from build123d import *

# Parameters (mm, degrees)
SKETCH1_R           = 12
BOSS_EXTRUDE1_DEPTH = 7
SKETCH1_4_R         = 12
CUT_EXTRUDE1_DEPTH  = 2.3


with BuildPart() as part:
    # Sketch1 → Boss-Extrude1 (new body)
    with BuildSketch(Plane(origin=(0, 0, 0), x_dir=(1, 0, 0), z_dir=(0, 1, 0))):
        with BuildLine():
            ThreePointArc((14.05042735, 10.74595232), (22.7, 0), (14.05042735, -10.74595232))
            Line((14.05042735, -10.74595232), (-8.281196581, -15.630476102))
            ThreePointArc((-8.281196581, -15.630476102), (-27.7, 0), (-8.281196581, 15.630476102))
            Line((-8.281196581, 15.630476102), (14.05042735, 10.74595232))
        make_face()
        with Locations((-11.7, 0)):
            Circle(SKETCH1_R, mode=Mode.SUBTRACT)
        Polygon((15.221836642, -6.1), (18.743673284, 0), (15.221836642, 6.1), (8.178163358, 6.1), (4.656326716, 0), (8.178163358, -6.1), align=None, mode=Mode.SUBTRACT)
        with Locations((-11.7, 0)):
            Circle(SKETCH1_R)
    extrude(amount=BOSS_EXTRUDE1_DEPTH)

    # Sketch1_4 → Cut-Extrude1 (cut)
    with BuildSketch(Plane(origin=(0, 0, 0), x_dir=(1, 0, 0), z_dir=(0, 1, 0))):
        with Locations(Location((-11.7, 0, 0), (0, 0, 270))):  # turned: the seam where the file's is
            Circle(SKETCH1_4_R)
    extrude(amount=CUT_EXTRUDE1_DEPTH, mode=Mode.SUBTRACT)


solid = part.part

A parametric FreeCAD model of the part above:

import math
import FreeCAD as App
import Part
import Sketcher
from FreeCAD import Vector
Q = App.Units.Quantity

doc = App.newDocument("Part")
params = doc.addObject("Spreadsheet::Sheet", "Params")
for row, (alias, value) in enumerate([
    ("sketch1_radius", "11 mm"),
    ("sketch1_radius2", "16 mm"),
    ("pad1_length", "7 mm"),
    ("sketch2_diameter", "24 mm"),
    ("pocket1_length", "2.3 mm"),
], start=1):
    params.set(f"A{row}", alias)
    params.set(f"B{row}", "=" + value)
    params.setAlias(f"B{row}", alias)

body = doc.addObject("PartDesign::Body", "Body")

# Sketch on XZ plane
sketch1 = doc.addObject("Sketcher::SketchObject", "Sketch")
body.addObject(sketch1)
sketch1.AttachmentSupport = (doc.XZ_Plane, [""])
sketch1.MapMode = "FlatFace"
sketch1.addGeometry([
    Part.ArcOfCircle(Part.Circle(Vector(12, 0, 0), Vector(0, 0, 1), 11), math.radians(-78), math.radians(78)),  # 0
    Part.LineSegment(Vector(14, -11, 0), Vector(-8, -16, 0)),  # 1
    Part.ArcOfCircle(Part.Circle(Vector(-12, 0, 0), Vector(0, 0, 1), 16), math.radians(78), math.radians(282)),  # 2
    Part.LineSegment(Vector(-8, 16, 0), Vector(14, 11, 0)),  # 3
    Part.LineSegment(Vector(15, 6, 0), Vector(8, 6, 0)),  # 4
    Part.LineSegment(Vector(8, 6, 0), Vector(5, 0, 0)),  # 5
    Part.LineSegment(Vector(5, 0, 0), Vector(8, -6, 0)),  # 6
    Part.LineSegment(Vector(8, -6, 0), Vector(15, -6, 0)),  # 7
    Part.LineSegment(Vector(15, -6, 0), Vector(19, 0, 0)),  # 8
    Part.LineSegment(Vector(19, 0, 0), Vector(15, 6, 0)),  # 9
], False)
sketch1.addConstraint([
    Sketcher.Constraint("Tangent", 0, 1, 1, 1),
    Sketcher.Constraint("Tangent", 1, 2, 2, 2),
    Sketcher.Constraint("Tangent", 2, 1, 3, 1),
    Sketcher.Constraint("Tangent", 3, 2, 0, 2),
    Sketcher.Constraint("Coincident", 4, 2, 5, 1),
    Sketcher.Constraint("Coincident", 5, 2, 6, 1),
    Sketcher.Constraint("Coincident", 6, 2, 7, 1),
    Sketcher.Constraint("Coincident", 7, 2, 8, 1),
    Sketcher.Constraint("Coincident", 8, 2, 9, 1),
    Sketcher.Constraint("Coincident", 9, 2, 4, 1),
    Sketcher.Constraint("Horizontal", 4),
    Sketcher.Constraint("Horizontal", 7),
    Sketcher.Constraint("Symmetric", 0, 3, 2, 3, -1, 1),
    Sketcher.Constraint("Symmetric", 4, 2, 6, 2, -1),
    Sketcher.Constraint("PointOnObject", 0, 3, -1),
    Sketcher.Constraint("PointOnObject", 5, 2, -1),
    Sketcher.Constraint("PointOnObject", 8, 2, -1),
    Sketcher.Constraint("Parallel", 5, 8),
    Sketcher.Constraint("Parallel", 6, 9),
    Sketcher.Constraint("Radius", 0, Q("11 mm")),
    Sketcher.Constraint("Radius", 2, Q("16 mm")),
    Sketcher.Constraint("Angle", 5, Q("-120 deg")),
    Sketcher.Constraint("DistanceX", -1, 1, 0, 3, Q("11.7 mm")),
    Sketcher.Constraint("DistanceY", -1, 1, 4, 2, Q("6.1 mm")),
    Sketcher.Constraint("DistanceX", 5, 2, 0, 1, Q("9.394101 mm")),
    Sketcher.Constraint("DistanceX", 4, 2, 4, 1, Q("7.043673 mm")),
])
sketch1.setExpression("Constraints[19]", "Params.sketch1_radius")
sketch1.setExpression("Constraints[20]", "Params.sketch1_radius2")
pad1 = doc.addObject("PartDesign::Pad", "Pad")
body.addObject(pad1)
pad1.Profile = sketch1
pad1.setExpression("Length", "Params.pad1_length")
pad1.Reversed = True

# Sketch on XZ plane
sketch2 = doc.addObject("Sketcher::SketchObject", "Sketch001")
body.addObject(sketch2)
sketch2.AttachmentSupport = (doc.XZ_Plane, [""])
sketch2.MapMode = "FlatFace"
sketch2.addGeometry(Part.Circle(Vector(-12, 0, 0), Vector(0, 0, 1), 12), False)
sketch2.addConstraint([
    Sketcher.Constraint("PointOnObject", 0, 3, -1),
    Sketcher.Constraint("Diameter", 0, Q("24 mm")),
    Sketcher.Constraint("DistanceX", 0, 3, -1, 1, Q("11.7 mm")),
])
sketch2.setExpression("Constraints[1]", "Params.sketch2_diameter")
pocket1 = doc.addObject("PartDesign::Pocket", "Pocket")
body.addObject(pocket1)
pocket1.Profile = sketch2
pocket1.setExpression("Length", "Params.pocket1_length")

doc.recompute()
